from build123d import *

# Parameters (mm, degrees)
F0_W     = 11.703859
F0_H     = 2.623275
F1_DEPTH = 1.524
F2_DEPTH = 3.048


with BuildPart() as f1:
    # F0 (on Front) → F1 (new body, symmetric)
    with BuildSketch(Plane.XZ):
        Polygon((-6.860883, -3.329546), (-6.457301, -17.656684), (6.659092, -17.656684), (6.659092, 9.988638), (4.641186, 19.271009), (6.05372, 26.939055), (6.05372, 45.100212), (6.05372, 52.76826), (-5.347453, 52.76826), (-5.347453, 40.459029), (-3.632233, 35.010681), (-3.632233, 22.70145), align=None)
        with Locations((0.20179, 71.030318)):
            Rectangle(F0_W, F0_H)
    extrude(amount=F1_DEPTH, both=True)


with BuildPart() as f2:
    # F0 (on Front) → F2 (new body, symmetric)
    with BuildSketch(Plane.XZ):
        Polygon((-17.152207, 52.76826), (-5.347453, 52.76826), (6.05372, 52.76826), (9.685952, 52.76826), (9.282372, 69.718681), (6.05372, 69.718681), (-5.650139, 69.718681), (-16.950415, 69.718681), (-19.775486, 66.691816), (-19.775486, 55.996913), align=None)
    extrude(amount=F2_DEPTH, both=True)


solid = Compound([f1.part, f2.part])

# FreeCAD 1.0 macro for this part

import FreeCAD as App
import Part
import Sketcher
Q = App.Units.Quantity

doc = App.newDocument("Part")
body = doc.addObject("PartDesign::Body", "Body")
body.AllowCompound = True

# Sketch on XZ plane
sketch1 = doc.addObject("Sketcher::SketchObject", "Sketch")
body.addObject(sketch1)
sketch1.AttachmentSupport = (doc.XZ_Plane, [""])
sketch1.MapMode = "FlatFace"
sketch1.addGeometry(Part.LineSegment(App.Vector(-6.9, -3.3, 0), App.Vector(-6.5, -17.7, 0)), False)
sketch1.addGeometry(Part.LineSegment(App.Vector(-6.5, -17.7, 0), App.Vector(6.7, -17.7, 0)), False)
sketch1.addGeometry(Part.LineSegment(App.Vector(6.7, -17.7, 0), App.Vector(6.7, 10, 0)), False)
sketch1.addGeometry(Part.LineSegment(App.Vector(6.7, 10, 0), App.Vector(4.6, 19.3, 0)), False)
sketch1.addGeometry(Part.LineSegment(App.Vector(4.6, 19.3, 0), App.Vector(6.1, 26.9, 0)), False)
sketch1.addGeometry(Part.LineSegment(App.Vector(6.1, 26.9, 0), App.Vector(6.1, 52.8, 0)), False)
sketch1.addGeometry(Part.LineSegment(App.Vector(6.1, 52.8, 0), App.Vector(-5.3, 52.8, 0)), False)
sketch1.addGeometry(Part.LineSegment(App.Vector(-5.3, 52.8, 0), App.Vector(-5.3, 40.5, 0)), False)
sketch1.addGeometry(Part.LineSegment(App.Vector(-5.3, 40.5, 0), App.Vector(-3.6, 35, 0)), False)
sketch1.addGeometry(Part.LineSegment(App.Vector(-3.6, 35, 0), App.Vector(-3.6, 22.7, 0)), False)
sketch1.addGeometry(Part.LineSegment(App.Vector(-3.6, 22.7, 0), App.Vector(-6.9, -3.3, 0)), False)
sketch1.addGeometry(Part.LineSegment(App.Vector(-5.7, 72.3, 0), App.Vector(-5.7, 69.7, 0)), False)
sketch1.addGeometry(Part.LineSegment(App.Vector(-5.7, 69.7, 0), App.Vector(6.1, 69.7, 0)), False)
sketch1.addGeometry(Part.LineSegment(App.Vector(6.1, 69.7, 0), App.Vector(6.1, 72.3, 0)), False)
sketch1.addGeometry(Part.LineSegment(App.Vector(6.1, 72.3, 0), App.Vector(-5.7, 72.3, 0)), False)
sketch1.addConstraint(Sketcher.Constraint("Coincident", 0, 2, 1, 1))
sketch1.addConstraint(Sketcher.Constraint("Coincident", 1, 2, 2, 1))
sketch1.addConstraint(Sketcher.Constraint("Coincident", 2, 2, 3, 1))
sketch1.addConstraint(Sketcher.Constraint("Coincident", 3, 2, 4, 1))
sketch1.addConstraint(Sketcher.Constraint("Coincident", 4, 2, 5, 1))
sketch1.addConstraint(Sketcher.Constraint("Coincident", 5, 2, 6, 1))
sketch1.addConstraint(Sketcher.Constraint("Coincident", 6, 2, 7, 1))
sketch1.addConstraint(Sketcher.Constraint("Coincident", 7, 2, 8, 1))
sketch1.addConstraint(Sketcher.Constraint("Coincident", 8, 2, 9, 1))
sketch1.addConstraint(Sketcher.Constraint("Coincident", 9, 2, 10, 1))
sketch1.addConstraint(Sketcher.Constraint("Coincident", 10, 2, 0, 1))
sketch1.addConstraint(Sketcher.Constraint("Coincident", 11, 2, 12, 1))
sketch1.addConstraint(Sketcher.Constraint("Coincident", 12, 2, 13, 1))
sketch1.addConstraint(Sketcher.Constraint("Coincident", 13, 2, 14, 1))
sketch1.addConstraint(Sketcher.Constraint("Coincident", 14, 2, 11, 1))
sketch1.addConstraint(Sketcher.Constraint("Horizontal", 1))
sketch1.addConstraint(Sketcher.Constraint("Vertical", 2))
sketch1.addConstraint(Sketcher.Constraint("Vertical", 5))
sketch1.addConstraint(Sketcher.Constraint("Horizontal", 6))
sketch1.addConstraint(Sketcher.Constraint("Vertical", 7))
sketch1.addConstraint(Sketcher.Constraint("Vertical", 9))
sketch1.addConstraint(Sketcher.Constraint("Vertical", 11))
sketch1.addConstraint(Sketcher.Constraint("Horizontal", 12))
sketch1.addConstraint(Sketcher.Constraint("Vertical", 13))
sketch1.addConstraint(Sketcher.Constraint("Horizontal", 14))
sketch1.addConstraint(Sketcher.Constraint("Vertical", 5, 2, 12, 2))
sketch1.addConstraint(Sketcher.Constraint("Equal", 7, 9))
sketch1.addConstraint(Sketcher.Constraint("DistanceX", 12, 1, 12, 2, Q("11.703859 mm")))
sketch1.addConstraint(Sketcher.Constraint("DistanceY", 2, 1, 2, 2, Q("27.645322 mm")))
sketch1.addConstraint(Sketcher.Constraint("DistanceY", 7, 2, 7, 1, Q("12.309231 mm")))
sketch1.addConstraint(Sketcher.Constraint("DistanceX", 0, 2, -1, 1, Q("6.457301 mm")))
sketch1.addConstraint(Sketcher.Constraint("DistanceY", 8, 2, 11, 2, Q("34.708 mm")))
sketch1.addConstraint(Sketcher.Constraint("Distance", 0, Q("14.332821 mm")))
sketch1.addConstraint(Sketcher.Constraint("Distance", 8, Q("5.711959 mm")))
sketch1.addConstraint(Sketcher.Constraint("Distance", 10, Q("26.230458 mm")))
sketch1.addConstraint(Sketcher.Constraint("DistanceX", 1, 1, 1, 2, Q("13.116393 mm")))
sketch1.addConstraint(Sketcher.Constraint("DistanceX", 6, 2, 6, 1, Q("11.401173 mm")))
sketch1.addConstraint(Sketcher.Constraint("DistanceY", 5, 1, 5, 2, Q("25.829205 mm")))
sketch1.addConstraint(Sketcher.Constraint("DistanceY", 11, 2, 11, 1, Q("2.623275 mm")))
sketch1.addConstraint(Sketcher.Constraint("DistanceY", -1, 1, 3, 2, Q("19.271009 mm")))
sketch1.addConstraint(Sketcher.Constraint("DistanceX", -1, 1, 4, 2, Q("6.05372 mm")))
sketch1.addConstraint(Sketcher.Constraint("DistanceY", -1, 1, 5, 2, Q("52.76826 mm")))
sketch1.addConstraint(Sketcher.Constraint("DistanceY", -1, 1, 8, 2, Q("35.010681 mm")))
sketch1.addConstraint(Sketcher.Constraint("DistanceY", 2, 2, 3, 2, Q("9.282371 mm")))
sketch1.addConstraint(Sketcher.Constraint("DistanceX", 6, 2, 3, 2, Q("9.988639 mm")))
pad1 = doc.addObject("PartDesign::Pad", "Pad")
body.addObject(pad1)
pad1.Profile = sketch1
pad1.Length = Q("0.12 in")
pad1.Midplane = True
body2 = doc.addObject("PartDesign::Body", "Body001")

# Sketch on XZ plane
sketch2 = doc.addObject("Sketcher::SketchObject", "Sketch001")
body2.addObject(sketch2)
sketch2.AttachmentSupport = (doc.getObject("XZ_Plane001"), [""])
sketch2.MapMode = "FlatFace"
sketch2.addGeometry(Part.LineSegment(App.Vector(-17.2, 52.8, 0), App.Vector(9.7, 52.8, 0)), False)
sketch2.addGeometry(Part.LineSegment(App.Vector(9.7, 52.8, 0), App.Vector(9.3, 69.7, 0)), False)
sketch2.addGeometry(Part.LineSegment(App.Vector(9.3, 69.7, 0), App.Vector(-17, 69.7, 0)), False)
sketch2.addGeometry(Part.LineSegment(App.Vector(-17, 69.7, 0), App.Vector(-19.8, 66.7, 0)), False)
sketch2.addGeometry(Part.LineSegment(App.Vector(-19.8, 66.7, 0), App.Vector(-19.8, 56, 0)), False)
sketch2.addGeometry(Part.LineSegment(App.Vector(-19.8, 56, 0), App.Vector(-17.2, 52.8, 0)), False)
sketch2.addConstraint(Sketcher.Constraint("Coincident", 0, 2, 1, 1))
sketch2.addConstraint(Sketcher.Constraint("Coincident", 1, 2, 2, 1))
sketch2.addConstraint(Sketcher.Constraint("Coincident", 2, 2, 3, 1))
sketch2.addConstraint(Sketcher.Constraint("Coincident", 3, 2, 4, 1))
sketch2.addConstraint(Sketcher.Constraint("Coincident", 4, 2, 5, 1))
sketch2.addConstraint(Sketcher.Constraint("Coincident", 5, 2, 0, 1))
sketch2.addConstraint(Sketcher.Constraint("Horizontal", 0))
sketch2.addConstraint(Sketcher.Constraint("Horizontal", 2))
sketch2.addConstraint(Sketcher.Constraint("Vertical", 4))
sketch2.addConstraint(Sketcher.Constraint("DistanceX", 0, 1, 0, 2, Q("26.838159 mm")))
sketch2.addConstraint(Sketcher.Constraint("DistanceX", 2, 2, 2, 1, Q("26.232787 mm")))
sketch2.addConstraint(Sketcher.Constraint("DistanceY", 4, 2, 4, 1, Q("10.694903 mm")))
sketch2.addConstraint(Sketcher.Constraint("DistanceY", -1, 1, 0, 2, Q("52.76826 mm")))
sketch2.addConstraint(Sketcher.Constraint("DistanceY", -1, 1, 1, 2, Q("69.718681 mm")))
sketch2.addConstraint(Sketcher.Constraint("DistanceX", 1, 2, 0, 2, Q("0.40358 mm")))
sketch2.addConstraint(Sketcher.Constraint("DistanceX", 3, 2, 2, 2, Q("2.825071 mm")))
sketch2.addConstraint(Sketcher.Constraint("DistanceY", 4, 2, 2, 2, Q("13.721768 mm")))
sketch2.addConstraint(Sketcher.Constraint("DistanceX", -1, 1, 0, 2, Q("9.685952 mm")))
pad2 = doc.addObject("PartDesign::Pad", "Pad001")
body2.addObject(pad2)
pad2.Profile = sketch2
pad2.Length = Q("0.24 in")
pad2.Midplane = True

doc.recompute()
